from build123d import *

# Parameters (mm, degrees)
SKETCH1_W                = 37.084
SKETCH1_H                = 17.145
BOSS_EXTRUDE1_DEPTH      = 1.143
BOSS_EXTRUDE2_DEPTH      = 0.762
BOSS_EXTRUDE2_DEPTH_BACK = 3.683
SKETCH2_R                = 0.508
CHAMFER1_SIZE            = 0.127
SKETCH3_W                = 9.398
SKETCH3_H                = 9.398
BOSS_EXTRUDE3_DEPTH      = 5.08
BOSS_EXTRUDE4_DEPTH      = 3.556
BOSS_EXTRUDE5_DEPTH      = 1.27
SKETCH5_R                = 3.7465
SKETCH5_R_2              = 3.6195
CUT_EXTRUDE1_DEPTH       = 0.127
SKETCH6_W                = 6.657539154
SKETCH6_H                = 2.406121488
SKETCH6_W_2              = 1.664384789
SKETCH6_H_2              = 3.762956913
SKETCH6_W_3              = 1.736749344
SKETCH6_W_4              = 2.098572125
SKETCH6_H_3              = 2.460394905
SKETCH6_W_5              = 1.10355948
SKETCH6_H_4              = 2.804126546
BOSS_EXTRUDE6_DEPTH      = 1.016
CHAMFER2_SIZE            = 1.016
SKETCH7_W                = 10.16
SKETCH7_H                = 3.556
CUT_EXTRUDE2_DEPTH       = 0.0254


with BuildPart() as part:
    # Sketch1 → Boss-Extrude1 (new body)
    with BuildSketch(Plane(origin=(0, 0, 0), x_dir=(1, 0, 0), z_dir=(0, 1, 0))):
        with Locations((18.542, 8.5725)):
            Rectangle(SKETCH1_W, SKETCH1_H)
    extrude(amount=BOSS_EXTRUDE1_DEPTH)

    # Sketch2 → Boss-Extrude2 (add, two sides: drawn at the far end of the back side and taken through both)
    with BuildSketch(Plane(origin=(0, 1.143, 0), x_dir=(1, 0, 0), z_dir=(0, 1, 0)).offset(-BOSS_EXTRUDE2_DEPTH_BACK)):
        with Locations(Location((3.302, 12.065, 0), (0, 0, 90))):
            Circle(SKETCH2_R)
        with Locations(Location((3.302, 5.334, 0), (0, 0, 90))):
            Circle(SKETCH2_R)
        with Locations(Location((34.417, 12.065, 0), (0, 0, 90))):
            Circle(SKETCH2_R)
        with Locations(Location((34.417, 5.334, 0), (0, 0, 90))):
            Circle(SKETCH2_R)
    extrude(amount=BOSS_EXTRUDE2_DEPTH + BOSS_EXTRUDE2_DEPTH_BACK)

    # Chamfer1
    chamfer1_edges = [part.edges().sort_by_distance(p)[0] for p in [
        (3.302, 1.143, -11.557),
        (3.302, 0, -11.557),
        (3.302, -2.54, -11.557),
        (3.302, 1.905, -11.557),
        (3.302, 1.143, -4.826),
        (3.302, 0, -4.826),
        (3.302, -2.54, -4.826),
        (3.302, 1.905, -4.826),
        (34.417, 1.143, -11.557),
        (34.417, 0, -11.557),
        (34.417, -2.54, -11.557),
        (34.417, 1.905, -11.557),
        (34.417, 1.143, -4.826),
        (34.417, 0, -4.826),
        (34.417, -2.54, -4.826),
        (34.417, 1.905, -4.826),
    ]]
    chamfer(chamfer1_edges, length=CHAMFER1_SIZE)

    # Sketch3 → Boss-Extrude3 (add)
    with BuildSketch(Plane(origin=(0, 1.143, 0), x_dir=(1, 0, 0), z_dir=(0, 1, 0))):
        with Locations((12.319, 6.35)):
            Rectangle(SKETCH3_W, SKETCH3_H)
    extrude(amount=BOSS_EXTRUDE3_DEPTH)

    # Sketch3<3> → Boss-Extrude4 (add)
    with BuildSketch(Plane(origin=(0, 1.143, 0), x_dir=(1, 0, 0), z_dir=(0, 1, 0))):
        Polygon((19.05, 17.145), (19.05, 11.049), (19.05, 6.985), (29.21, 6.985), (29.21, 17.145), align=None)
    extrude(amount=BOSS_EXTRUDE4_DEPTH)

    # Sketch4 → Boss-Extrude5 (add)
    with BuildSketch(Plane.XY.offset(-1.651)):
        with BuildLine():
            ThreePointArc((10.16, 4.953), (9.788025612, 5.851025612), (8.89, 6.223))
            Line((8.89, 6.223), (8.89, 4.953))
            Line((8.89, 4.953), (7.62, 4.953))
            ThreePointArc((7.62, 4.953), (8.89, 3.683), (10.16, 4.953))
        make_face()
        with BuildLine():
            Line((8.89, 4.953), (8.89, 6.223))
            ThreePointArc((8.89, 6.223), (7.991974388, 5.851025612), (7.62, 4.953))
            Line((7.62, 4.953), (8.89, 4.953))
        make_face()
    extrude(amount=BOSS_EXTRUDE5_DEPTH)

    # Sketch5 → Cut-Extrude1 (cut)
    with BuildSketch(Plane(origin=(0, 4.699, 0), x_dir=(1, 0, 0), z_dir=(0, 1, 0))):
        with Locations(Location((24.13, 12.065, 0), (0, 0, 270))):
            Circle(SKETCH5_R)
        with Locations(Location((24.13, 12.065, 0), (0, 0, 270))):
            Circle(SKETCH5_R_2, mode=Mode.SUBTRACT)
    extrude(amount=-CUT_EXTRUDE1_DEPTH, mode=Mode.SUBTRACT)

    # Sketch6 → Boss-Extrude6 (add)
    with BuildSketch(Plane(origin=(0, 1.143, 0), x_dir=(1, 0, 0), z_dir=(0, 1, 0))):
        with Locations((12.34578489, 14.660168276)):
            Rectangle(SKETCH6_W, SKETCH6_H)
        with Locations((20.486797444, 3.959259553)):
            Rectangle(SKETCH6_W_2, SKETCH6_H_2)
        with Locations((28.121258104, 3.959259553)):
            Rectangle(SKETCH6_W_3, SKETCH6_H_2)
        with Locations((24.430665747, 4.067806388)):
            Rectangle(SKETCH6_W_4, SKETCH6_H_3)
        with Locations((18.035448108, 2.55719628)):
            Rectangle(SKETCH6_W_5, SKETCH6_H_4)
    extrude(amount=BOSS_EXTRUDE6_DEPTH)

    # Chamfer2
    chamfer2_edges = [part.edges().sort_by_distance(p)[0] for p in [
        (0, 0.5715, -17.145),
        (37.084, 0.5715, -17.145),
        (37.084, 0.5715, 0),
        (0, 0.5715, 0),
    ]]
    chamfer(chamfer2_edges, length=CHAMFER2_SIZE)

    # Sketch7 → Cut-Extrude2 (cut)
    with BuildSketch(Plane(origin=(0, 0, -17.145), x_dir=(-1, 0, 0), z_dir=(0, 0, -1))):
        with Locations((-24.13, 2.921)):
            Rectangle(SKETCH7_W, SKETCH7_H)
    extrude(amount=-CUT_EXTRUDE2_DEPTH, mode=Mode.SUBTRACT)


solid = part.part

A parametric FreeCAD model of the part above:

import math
import FreeCAD as App
import Part
import Sketcher

V = App.Vector
Q = App.Units.Quantity


def edges_at(feature, points):
    """Names of the edges that pass closest to the given points."""
    edges = feature.Shape.Edges
    near = lambda p: min(range(len(edges)), key=lambda i: edges[i].distToShape(Part.Vertex(*p))[0])
    return sorted({f"Edge{near(p) + 1}" for p in points})


def add_polygon(sketch, points):
    """Adds a closed chain of lines whose ends are joined by coincident constraints."""
    first, n = sketch.GeometryCount, len(points)
    for a, b in zip(points, points[1:] + points[:1]):
        sketch.addGeometry(Part.LineSegment(App.Vector(*a, 0), App.Vector(*b, 0)), False)
    for i in range(n):
        sketch.addConstraint(Sketcher.Constraint("Coincident", first + i, 2, first + (i + 1) % n, 1))

doc = App.newDocument("Part")
body = doc.addObject("PartDesign::Body", "Body")

# Sketch on XZ plane
sketch1 = body.newObject("Sketcher::SketchObject", "Sketch")
sketch1.AttachmentSupport = (doc.getObject("XZ_Plane"), [""])
sketch1.MapMode = "FlatFace"
add_polygon(sketch1, [(0, -17), (0, 0), (37, 0), (37, -17)])  # lines 0-3
sketch1.addConstraint([
    Sketcher.Constraint("Vertical", 0),
    Sketcher.Constraint("Horizontal", 1),
    Sketcher.Constraint("Vertical", 2),
    Sketcher.Constraint("Horizontal", 3),
    Sketcher.Constraint("Coincident", 0, 2, -1, 1),
    Sketcher.Constraint("DistanceX", 1, 1, 1, 2, Q("1.46 in")),
    Sketcher.Constraint("DistanceY", 0, 1, 0, 2, Q("0.675 in")),
])
pad1 = body.newObject("PartDesign::Pad", "Pad")
pad1.Profile = sketch1
pad1.Length = Q("0.045 in")
pad1.Reversed = True

# Sketch on XZ plane
sketch2 = body.newObject("Sketcher::SketchObject", "Sketch001")
sketch2.AttachmentSupport = (doc.getObject("XZ_Plane"), [""])
sketch2.MapMode = "FlatFace"
sketch2.AttachmentOffset = App.Placement(V(0, 0, -0.045 * 25.4), App.Rotation())
sketch2.addGeometry([
    Part.Circle(V(3.3, -12.1, 0), V(0, 0, 1), 0.5),
    Part.Circle(V(3.3, -5.3, 0), V(0, 0, 1), 0.5),
    Part.Circle(V(34.4, -12.1, 0), V(0, 0, 1), 0.5),
    Part.Circle(V(34.4, -5.3, 0), V(0, 0, 1), 0.5),
], False)
sketch2.addConstraint([
    Sketcher.Constraint("Equal", 0, 1),
    Sketcher.Constraint("Equal", 1, 2),
    Sketcher.Constraint("Equal", 2, 3),
    Sketcher.Constraint("Horizontal", 0, 3, 2, 3),
    Sketcher.Constraint("Horizontal", 1, 3, 3, 3),
    Sketcher.Constraint("Vertical", 0, 3, 1, 3),
    Sketcher.Constraint("Vertical", 2, 3, 3, 3),
    Sketcher.Constraint("Diameter", 0, Q("0.04 in")),
    Sketcher.Constraint("DistanceX", -1, 1, 0, 3, Q("0.13 in")),
    Sketcher.Constraint("DistanceY", 1, 3, -1, 1, Q("0.21 in")),
    Sketcher.Constraint("DistanceY", 0, 3, -1, 1, Q("0.475 in")),
    Sketcher.Constraint("DistanceX", -1, 1, 2, 3, Q("1.355 in")),
])
pad2 = body.newObject("PartDesign::Pad", "Pad001")
pad2.Profile = sketch2
pad2.Type = "TwoLengths"
pad2.Length = Q("0.03 in")
pad2.Length2 = Q("0.145 in")
pad2.Reversed = True
doc.recompute()

chamfer = body.newObject("PartDesign::Chamfer", "Chamfer")
chamfer.Base = (pad2, edges_at(pad2, [
    (3.302, 1.143, -11.557),
    (3.302, 0, -11.557),
    (3.302, -2.54, -11.557),
    (3.302, 1.905, -11.557),
    (3.302, 1.143, -4.826),
    (3.302, 0, -4.826),
    (3.302, -2.54, -4.826),
    (3.302, 1.905, -4.826),
    (34.417, 1.143, -11.557),
    (34.417, 0, -11.557),
    (34.417, -2.54, -11.557),
    (34.417, 1.905, -11.557),
    (34.417, 1.143, -4.826),
    (34.417, 0, -4.826),
    (34.417, -2.54, -4.826),
    (34.417, 1.905, -4.826),
]))
chamfer.Size = Q("0.005 in")

# Sketch on XZ plane
sketch3 = body.newObject("Sketcher::SketchObject", "Sketch002")
sketch3.AttachmentSupport = (doc.getObject("XZ_Plane"), [""])
sketch3.MapMode = "FlatFace"
sketch3.AttachmentOffset = App.Placement(V(0, 0, -0.045 * 25.4), App.Rotation())
add_polygon(sketch3, [(8, -11), (8, -2), (17, -2), (17, -11)])  # lines 0-3
sketch3.addConstraint([
    Sketcher.Constraint("Vertical", 0),
    Sketcher.Constraint("Horizontal", 1),
    Sketcher.Constraint("Vertical", 2),
    Sketcher.Constraint("Horizontal", 3),
    Sketcher.Constraint("Equal", 3, 0),
    Sketcher.Constraint("DistanceX", 1, 1, 1, 2, Q("0.37 in")),
    Sketcher.Constraint("DistanceX", -1, 1, 0, 2, Q("0.3 in")),
    Sketcher.Constraint("DistanceY", 0, 2, -1, 1, Q("0.065 in")),
])
pad3 = body.newObject("PartDesign::Pad", "Pad002")
pad3.Profile = sketch3
pad3.Length = Q("0.2 in")
pad3.Reversed = True

# Sketch on XZ plane
sketch4 = body.newObject("Sketcher::SketchObject", "Sketch003")
sketch4.AttachmentSupport = (doc.getObject("XZ_Plane"), [""])
sketch4.MapMode = "FlatFace"
sketch4.AttachmentOffset = App.Placement(V(0, 0, -0.045 * 25.4), App.Rotation())
add_polygon(sketch4, [(19, -17), (19, -7), (29, -7), (29, -17)])  # lines 0-3
sketch4.addConstraint([
    Sketcher.Constraint("Vertical", 0),
    Sketcher.Constraint("Horizontal", 1),
    Sketcher.Constraint("Vertical", 2),
    Sketcher.Constraint("Horizontal", 3),
    Sketcher.Constraint("Equal", 3, 0),
    Sketcher.Constraint("DistanceX", 1, 1, 1, 2, Q("0.4 in")),
    Sketcher.Constraint("DistanceX", -1, 1, 0, 2, Q("0.75 in")),
    Sketcher.Constraint("DistanceY", 0, 2, -1, 1, Q("0.275 in")),
])
pad4 = body.newObject("PartDesign::Pad", "Pad003")
pad4.Profile = sketch4
pad4.Length = Q("0.14 in")
pad4.Reversed = True

# Sketch on XY plane
sketch5 = body.newObject("Sketcher::SketchObject", "Sketch004")
sketch5.AttachmentSupport = (doc.getObject("XY_Plane"), [""])
sketch5.MapMode = "FlatFace"
sketch5.AttachmentOffset = App.Placement(V(0, 0, -0.065 * 25.4), App.Rotation())
sketch5.addGeometry([
    Part.ArcOfCircle(Part.Circle(V(8.9, 5, 0), V(0, 0, 1), 1.3), math.radians(0), math.radians(90)),
    Part.ArcOfCircle(Part.Circle(V(8.9, 5, 0), V(0, 0, 1), 1.3), math.radians(90), math.radians(180)),
    Part.ArcOfCircle(Part.Circle(V(8.9, 5, 0), V(0, 0, 1), 1.3), math.radians(180), math.radians(360)),
], False)
sketch5.addConstraint([
    Sketcher.Constraint("Tangent", 0, 2, 1, 1),
    Sketcher.Constraint("Tangent", 1, 2, 2, 1),
    Sketcher.Constraint("Tangent", 2, 2, 0, 1),
    Sketcher.Constraint("Horizontal", 2, 3, 1, 2),
    Sketcher.Constraint("Horizontal", 1, 2, 2, 2),
    Sketcher.Constraint("Vertical", 2, 3, 0, 2),
    Sketcher.Constraint("Radius", 0, Q("0.05 in")),
    Sketcher.Constraint("DistanceX", -1, 1, 1, 2, Q("0.3 in")),
    Sketcher.Constraint("DistanceY", -1, 1, 0, 3, Q("0.195 in")),
])
pad5 = body.newObject("PartDesign::Pad", "Pad004")
pad5.Profile = sketch5
pad5.Length = Q("0.05 in")

# Sketch on XZ plane
sketch6 = body.newObject("Sketcher::SketchObject", "Sketch005")
sketch6.AttachmentSupport = (doc.getObject("XZ_Plane"), [""])
sketch6.MapMode = "FlatFace"
sketch6.AttachmentOffset = App.Placement(V(0, 0, -0.185 * 25.4), App.Rotation())
sketch6.addGeometry([
    Part.Circle(V(24.1, -12.1, 0), V(0, 0, 1), 3.7),
    Part.Circle(V(24.1, -12.1, 0), V(0, 0, 1), 3.6),
], False)
sketch6.addConstraint([
    Sketcher.Constraint("Coincident", 1, 3, 0, 3),
    Sketcher.Constraint("Diameter", 0, Q("0.295 in")),
    Sketcher.Constraint("Diameter", 1, Q("0.285 in")),
    Sketcher.Constraint("DistanceX", -1, 1, 0, 3, Q("0.95 in")),
    Sketcher.Constraint("DistanceY", 0, 3, -1, 1, Q("0.475 in")),
])
pocket1 = body.newObject("PartDesign::Pocket", "Pocket")
pocket1.Profile = sketch6
pocket1.Length = Q("0.005 in")
pocket1.Reversed = True

# Sketch on XZ plane
sketch7 = body.newObject("Sketcher::SketchObject", "Sketch006")
sketch7.AttachmentSupport = (doc.getObject("XZ_Plane"), [""])
sketch7.MapMode = "FlatFace"
sketch7.AttachmentOffset = App.Placement(V(0, 0, -0.045 * 25.4), App.Rotation())
add_polygon(sketch7, [(9, -15.9), (9, -13.5), (15.7, -13.5), (15.7, -15.9)])  # lines 0-3
add_polygon(sketch7, [(19.7, -5.8), (19.7, -2.1), (21.3, -2.1), (21.3, -5.8)])  # lines 4-7
add_polygon(sketch7, [(27.3, -5.8), (27.3, -2.1), (29, -2.1), (29, -5.8)])  # lines 8-11
add_polygon(sketch7, [(23.4, -5.3), (23.4, -2.8), (25.5, -2.8), (25.5, -5.3)])  # lines 12-15
add_polygon(sketch7, [(17.5, -4), (17.5, -1.2), (18.6, -1.2), (18.6, -4)])  # lines 16-19
sketch7.addConstraint([
    Sketcher.Constraint("Vertical", 0),
    Sketcher.Constraint("Horizontal", 1),
    Sketcher.Constraint("Vertical", 2),
    Sketcher.Constraint("Horizontal", 3),
    Sketcher.Constraint("Vertical", 4),
    Sketcher.Constraint("Horizontal", 5),
    Sketcher.Constraint("Vertical", 6),
    Sketcher.Constraint("Horizontal", 7),
    Sketcher.Constraint("Vertical", 8),
    Sketcher.Constraint("Horizontal", 9),
    Sketcher.Constraint("Vertical", 10),
    Sketcher.Constraint("Horizontal", 11),
    Sketcher.Constraint("Vertical", 12),
    Sketcher.Constraint("Horizontal", 13),
    Sketcher.Constraint("Vertical", 14),
    Sketcher.Constraint("Horizontal", 15),
    Sketcher.Constraint("Vertical", 16),
    Sketcher.Constraint("Horizontal", 17),
    Sketcher.Constraint("Vertical", 18),
    Sketcher.Constraint("Horizontal", 19),
    Sketcher.Constraint("Horizontal", 5, 2, 8, 2),
    Sketcher.Constraint("Horizontal", 7, 2, 10, 2),
    Sketcher.Constraint("DistanceX", 1, 1, 1, 2, Q("6.657539 mm")),
    Sketcher.Constraint("DistanceX", 9, 1, 9, 2, Q("1.736749 mm")),
    Sketcher.Constraint("DistanceX", 17, 1, 17, 2, Q("1.103559 mm")),
    Sketcher.Constraint("DistanceY", 0, 1, 0, 2, Q("2.406121 mm")),
    Sketcher.Constraint("DistanceX", 5, 1, 5, 2, Q("1.664385 mm")),
    Sketcher.Constraint("DistanceX", 13, 1, 13, 2, Q("2.098572 mm")),
    Sketcher.Constraint("DistanceY", 4, 1, 4, 2, Q("3.762957 mm")),
    Sketcher.Constraint("DistanceY", 12, 1, 12, 2, Q("2.460395 mm")),
    Sketcher.Constraint("DistanceY", 16, 1, 16, 2, Q("2.804127 mm")),
    Sketcher.Constraint("DistanceY", 2, 2, -1, 1, Q("15.863229 mm")),
    Sketcher.Constraint("DistanceY", 4, 2, -1, 1, Q("2.077781 mm")),
    Sketcher.Constraint("DistanceX", -1, 1, 5, 2, Q("21.31899 mm")),
    Sketcher.Constraint("DistanceX", -1, 1, 12, 2, Q("23.38138 mm")),
    Sketcher.Constraint("DistanceY", 12, 2, -1, 1, Q("2.837609 mm")),
    Sketcher.Constraint("DistanceX", -1, 1, 16, 2, Q("17.483668 mm")),
    Sketcher.Constraint("DistanceY", 18, 2, -1, 1, Q("3.95926 mm")),
    Sketcher.Constraint("DistanceX", 1, 2, 4, 2, Q("3.980051 mm")),
    Sketcher.Constraint("DistanceX", 4, 2, 8, 2, Q("7.598278 mm")),
])
pad6 = body.newObject("PartDesign::Pad", "Pad005")
pad6.Profile = sketch7
pad6.Length = Q("0.04 in")
pad6.Reversed = True
doc.recompute()

chamfer2 = body.newObject("PartDesign::Chamfer", "Chamfer001")
chamfer2.Base = (pad6, edges_at(pad6, [
    (0, 0.572, -17.145),
    (37.084, 0.572, -17.145),
    (37.084, 0.572, 0),
    (0, 0.572, 0),
]))
chamfer2.Size = Q("0.04 in")

# Sketch on XY plane
sketch8 = body.newObject("Sketcher::SketchObject", "Sketch007")
sketch8.AttachmentSupport = (doc.getObject("XY_Plane"), [""])
sketch8.MapMode = "FlatFace"
sketch8.AttachmentOffset = App.Placement(V(0, 0, -0.675 * 25.4), App.Rotation())
add_polygon(sketch8, [(29.2, 4.7), (29.2, 1.1), (19.1, 1.1), (19.1, 4.7)])  # lines 0-3
sketch8.addConstraint([
    Sketcher.Constraint("Vertical", 0),
    Sketcher.Constraint("Horizontal", 1),
    Sketcher.Constraint("Vertical", 2),
    Sketcher.Constraint("Horizontal", 3),
    Sketcher.Constraint("DistanceX", 1, 2, 1, 1, Q("0.4 in")),
    Sketcher.Constraint("DistanceY", 0, 2, 0, 1, Q("0.14 in")),
    Sketcher.Constraint("DistanceX", -1, 1, 0, 2, Q("1.15 in")),
    Sketcher.Constraint("DistanceY", -1, 1, 0, 2, Q("0.045 in")),
])
pocket2 = body.newObject("PartDesign::Pocket", "Pocket001")
pocket2.Profile = sketch8
pocket2.Length = Q("0.001 in")
pocket2.Reversed = True

doc.recompute()
